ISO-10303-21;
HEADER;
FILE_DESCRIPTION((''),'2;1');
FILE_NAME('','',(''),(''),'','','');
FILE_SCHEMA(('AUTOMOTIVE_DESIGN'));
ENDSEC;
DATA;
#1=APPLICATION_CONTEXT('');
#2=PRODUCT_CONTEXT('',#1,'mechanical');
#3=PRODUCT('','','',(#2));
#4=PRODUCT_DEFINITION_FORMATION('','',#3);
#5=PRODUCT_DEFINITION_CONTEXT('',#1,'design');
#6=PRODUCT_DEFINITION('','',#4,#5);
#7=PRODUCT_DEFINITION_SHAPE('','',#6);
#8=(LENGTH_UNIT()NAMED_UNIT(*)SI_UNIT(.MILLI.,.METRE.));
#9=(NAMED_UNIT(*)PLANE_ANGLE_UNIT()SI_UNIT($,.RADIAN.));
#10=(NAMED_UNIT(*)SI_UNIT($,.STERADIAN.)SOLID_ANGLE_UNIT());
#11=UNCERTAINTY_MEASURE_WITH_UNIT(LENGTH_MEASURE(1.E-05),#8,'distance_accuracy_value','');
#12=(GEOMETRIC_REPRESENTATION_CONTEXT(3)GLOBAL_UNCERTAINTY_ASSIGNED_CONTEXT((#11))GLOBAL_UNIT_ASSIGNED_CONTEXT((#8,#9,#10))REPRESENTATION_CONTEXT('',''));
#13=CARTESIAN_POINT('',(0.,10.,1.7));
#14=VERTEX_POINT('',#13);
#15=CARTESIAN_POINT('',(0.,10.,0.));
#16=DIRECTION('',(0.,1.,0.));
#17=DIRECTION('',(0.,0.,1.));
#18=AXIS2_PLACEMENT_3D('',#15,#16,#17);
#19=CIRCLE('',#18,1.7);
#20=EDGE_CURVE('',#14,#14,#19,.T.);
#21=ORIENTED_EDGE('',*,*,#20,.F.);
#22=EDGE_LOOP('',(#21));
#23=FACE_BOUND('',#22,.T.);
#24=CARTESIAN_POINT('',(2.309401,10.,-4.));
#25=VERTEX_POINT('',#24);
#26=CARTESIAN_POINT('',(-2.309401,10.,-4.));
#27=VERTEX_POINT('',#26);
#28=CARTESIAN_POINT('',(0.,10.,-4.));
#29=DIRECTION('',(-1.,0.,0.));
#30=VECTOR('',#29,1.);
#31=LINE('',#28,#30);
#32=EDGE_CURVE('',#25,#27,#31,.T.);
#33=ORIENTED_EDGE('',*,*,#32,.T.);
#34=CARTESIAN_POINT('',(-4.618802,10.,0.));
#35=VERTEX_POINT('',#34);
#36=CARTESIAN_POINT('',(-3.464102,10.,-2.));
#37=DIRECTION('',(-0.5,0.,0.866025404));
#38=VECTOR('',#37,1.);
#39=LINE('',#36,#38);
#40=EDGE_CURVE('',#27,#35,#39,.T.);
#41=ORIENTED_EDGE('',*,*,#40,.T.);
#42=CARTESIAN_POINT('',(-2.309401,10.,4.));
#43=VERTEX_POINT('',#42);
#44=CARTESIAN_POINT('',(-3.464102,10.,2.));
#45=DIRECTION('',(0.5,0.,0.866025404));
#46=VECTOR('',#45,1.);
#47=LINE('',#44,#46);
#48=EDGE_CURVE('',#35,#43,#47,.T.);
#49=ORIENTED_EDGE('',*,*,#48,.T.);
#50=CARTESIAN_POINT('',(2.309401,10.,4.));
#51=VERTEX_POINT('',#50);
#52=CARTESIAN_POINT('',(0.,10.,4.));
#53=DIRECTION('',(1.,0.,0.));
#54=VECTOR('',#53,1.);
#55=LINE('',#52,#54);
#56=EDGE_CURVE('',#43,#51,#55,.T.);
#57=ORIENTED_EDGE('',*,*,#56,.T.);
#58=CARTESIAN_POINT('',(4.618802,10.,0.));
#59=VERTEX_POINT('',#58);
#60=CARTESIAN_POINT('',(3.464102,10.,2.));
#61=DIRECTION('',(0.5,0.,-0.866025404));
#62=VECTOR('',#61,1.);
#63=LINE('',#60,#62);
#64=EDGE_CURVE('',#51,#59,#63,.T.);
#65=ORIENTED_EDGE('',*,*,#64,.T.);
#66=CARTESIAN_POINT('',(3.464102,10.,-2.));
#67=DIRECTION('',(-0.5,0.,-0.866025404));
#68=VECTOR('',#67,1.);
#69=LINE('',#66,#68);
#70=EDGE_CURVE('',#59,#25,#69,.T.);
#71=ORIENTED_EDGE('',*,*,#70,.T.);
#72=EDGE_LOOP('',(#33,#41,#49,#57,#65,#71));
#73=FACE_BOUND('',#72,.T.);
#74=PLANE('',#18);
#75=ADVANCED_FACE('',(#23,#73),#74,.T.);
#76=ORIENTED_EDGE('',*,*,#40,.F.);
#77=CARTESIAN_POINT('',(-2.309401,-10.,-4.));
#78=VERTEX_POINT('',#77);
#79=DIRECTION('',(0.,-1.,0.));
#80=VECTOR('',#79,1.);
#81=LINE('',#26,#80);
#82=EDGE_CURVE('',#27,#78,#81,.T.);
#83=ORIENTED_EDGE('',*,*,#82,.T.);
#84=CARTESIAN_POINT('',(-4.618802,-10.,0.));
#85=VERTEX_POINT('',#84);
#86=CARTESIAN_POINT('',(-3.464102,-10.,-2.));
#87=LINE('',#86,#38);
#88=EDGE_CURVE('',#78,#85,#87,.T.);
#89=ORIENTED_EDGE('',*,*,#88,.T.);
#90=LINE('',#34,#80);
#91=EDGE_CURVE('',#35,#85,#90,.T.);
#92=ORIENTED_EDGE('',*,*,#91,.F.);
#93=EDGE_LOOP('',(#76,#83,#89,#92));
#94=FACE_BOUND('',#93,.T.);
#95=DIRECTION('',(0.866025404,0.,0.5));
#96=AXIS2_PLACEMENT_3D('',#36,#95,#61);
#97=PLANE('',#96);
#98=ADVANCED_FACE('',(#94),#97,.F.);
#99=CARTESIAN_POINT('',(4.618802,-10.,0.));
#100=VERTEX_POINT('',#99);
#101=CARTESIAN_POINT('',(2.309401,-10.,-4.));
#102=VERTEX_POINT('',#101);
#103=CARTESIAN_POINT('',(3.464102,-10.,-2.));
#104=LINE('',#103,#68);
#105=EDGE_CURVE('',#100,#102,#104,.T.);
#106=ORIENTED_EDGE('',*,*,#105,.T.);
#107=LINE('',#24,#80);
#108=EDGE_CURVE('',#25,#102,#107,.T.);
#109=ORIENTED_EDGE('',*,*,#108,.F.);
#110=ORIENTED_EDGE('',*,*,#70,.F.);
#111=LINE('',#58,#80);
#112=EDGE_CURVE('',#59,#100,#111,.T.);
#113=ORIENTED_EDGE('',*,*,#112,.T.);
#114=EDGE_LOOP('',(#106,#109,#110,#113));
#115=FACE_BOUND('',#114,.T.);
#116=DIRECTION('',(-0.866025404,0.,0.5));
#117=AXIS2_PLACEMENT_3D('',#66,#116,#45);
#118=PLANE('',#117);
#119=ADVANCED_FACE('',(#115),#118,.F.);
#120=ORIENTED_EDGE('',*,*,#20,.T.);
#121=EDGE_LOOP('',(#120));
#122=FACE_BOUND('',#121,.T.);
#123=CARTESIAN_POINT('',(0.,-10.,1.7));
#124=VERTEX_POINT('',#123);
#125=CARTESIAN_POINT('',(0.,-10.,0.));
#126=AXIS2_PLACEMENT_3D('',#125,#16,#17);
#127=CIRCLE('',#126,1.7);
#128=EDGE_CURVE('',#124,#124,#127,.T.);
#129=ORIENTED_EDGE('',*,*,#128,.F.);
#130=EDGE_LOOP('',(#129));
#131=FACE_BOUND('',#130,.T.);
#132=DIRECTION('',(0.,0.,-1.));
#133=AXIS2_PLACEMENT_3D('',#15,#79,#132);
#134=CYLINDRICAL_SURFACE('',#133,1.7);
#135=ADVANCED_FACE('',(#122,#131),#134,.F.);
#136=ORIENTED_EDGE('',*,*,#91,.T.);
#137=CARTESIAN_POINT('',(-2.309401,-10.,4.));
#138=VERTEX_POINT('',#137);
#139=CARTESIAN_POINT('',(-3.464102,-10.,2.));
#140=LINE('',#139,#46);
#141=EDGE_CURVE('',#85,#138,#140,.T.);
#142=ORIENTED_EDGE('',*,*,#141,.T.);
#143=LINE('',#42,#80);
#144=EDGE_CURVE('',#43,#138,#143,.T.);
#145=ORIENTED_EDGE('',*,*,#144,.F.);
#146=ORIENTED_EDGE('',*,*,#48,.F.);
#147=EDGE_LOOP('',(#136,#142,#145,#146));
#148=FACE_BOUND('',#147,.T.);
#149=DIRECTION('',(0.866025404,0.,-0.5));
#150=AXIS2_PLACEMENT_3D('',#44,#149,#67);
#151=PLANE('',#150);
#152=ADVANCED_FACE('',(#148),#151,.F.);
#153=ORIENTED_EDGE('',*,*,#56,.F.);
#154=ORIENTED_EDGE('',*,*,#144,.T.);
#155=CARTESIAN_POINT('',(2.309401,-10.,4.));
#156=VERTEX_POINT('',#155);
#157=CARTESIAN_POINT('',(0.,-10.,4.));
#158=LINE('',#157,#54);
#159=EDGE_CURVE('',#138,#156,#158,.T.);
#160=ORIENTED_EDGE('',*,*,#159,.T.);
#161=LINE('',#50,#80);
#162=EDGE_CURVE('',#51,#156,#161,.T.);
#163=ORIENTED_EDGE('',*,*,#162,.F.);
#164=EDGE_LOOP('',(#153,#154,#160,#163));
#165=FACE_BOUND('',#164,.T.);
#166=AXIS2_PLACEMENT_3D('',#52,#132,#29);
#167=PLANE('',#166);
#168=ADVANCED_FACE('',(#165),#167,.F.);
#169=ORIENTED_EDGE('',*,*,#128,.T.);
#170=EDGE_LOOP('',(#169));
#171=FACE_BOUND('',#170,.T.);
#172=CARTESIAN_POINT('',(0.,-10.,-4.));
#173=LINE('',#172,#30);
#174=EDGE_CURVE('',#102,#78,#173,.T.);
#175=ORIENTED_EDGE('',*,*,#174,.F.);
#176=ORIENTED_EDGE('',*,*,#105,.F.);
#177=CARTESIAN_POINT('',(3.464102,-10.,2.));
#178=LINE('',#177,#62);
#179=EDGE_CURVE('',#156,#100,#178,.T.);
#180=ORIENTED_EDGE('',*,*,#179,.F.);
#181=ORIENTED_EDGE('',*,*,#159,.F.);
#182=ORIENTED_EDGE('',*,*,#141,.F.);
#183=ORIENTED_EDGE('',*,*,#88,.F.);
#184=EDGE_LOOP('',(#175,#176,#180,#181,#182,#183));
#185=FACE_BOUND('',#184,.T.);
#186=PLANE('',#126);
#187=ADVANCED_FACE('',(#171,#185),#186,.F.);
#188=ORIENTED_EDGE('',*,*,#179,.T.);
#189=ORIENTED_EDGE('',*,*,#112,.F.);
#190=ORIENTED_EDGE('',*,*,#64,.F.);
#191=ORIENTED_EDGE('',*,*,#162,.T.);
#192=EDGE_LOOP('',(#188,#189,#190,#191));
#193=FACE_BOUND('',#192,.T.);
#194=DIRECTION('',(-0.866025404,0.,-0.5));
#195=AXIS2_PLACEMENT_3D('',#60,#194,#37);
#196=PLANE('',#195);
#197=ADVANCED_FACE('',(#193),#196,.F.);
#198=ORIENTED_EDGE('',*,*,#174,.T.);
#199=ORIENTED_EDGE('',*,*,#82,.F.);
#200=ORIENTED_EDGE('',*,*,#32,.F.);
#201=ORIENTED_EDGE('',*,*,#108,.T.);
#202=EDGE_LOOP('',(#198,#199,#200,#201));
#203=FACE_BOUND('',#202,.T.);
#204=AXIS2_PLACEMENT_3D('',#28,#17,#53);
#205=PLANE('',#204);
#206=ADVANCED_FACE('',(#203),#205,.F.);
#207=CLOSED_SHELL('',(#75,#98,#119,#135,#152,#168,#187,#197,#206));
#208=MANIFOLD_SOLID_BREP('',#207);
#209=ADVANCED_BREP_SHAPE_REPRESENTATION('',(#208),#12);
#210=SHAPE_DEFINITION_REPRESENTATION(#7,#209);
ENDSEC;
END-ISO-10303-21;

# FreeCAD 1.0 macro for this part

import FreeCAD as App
import Part
import Sketcher
from FreeCAD import Vector
Q = App.Units.Quantity

doc = App.newDocument("Part")
params = doc.addObject("Spreadsheet::Sheet", "Params")
for row, (alias, value) in enumerate([
    ("sketch1_diameter", "3.4 mm"),
    ("pad1_length", "20 mm"),
], start=1):
    params.set(f"A{row}", alias)
    params.set(f"B{row}", "=" + value)
    params.setAlias(f"B{row}", alias)

body = doc.addObject("PartDesign::Body", "Body")

sketch1 = body.newObject("Sketcher::SketchObject", "Sketch")
sketch1.AttachmentSupport = (doc.getObject("XZ_Plane"), [""])
sketch1.MapMode = "FlatFace"
sketch1.addGeometry([
    Part.LineSegment(Vector(-2.309401, 4, 0), Vector(2.309401, 4, 0)),
    Part.LineSegment(Vector(2.309401, 4, 0), Vector(4.618802, 0, 0)),
    Part.LineSegment(Vector(4.618802, 0, 0), Vector(2.309401, -4, 0)),
    Part.LineSegment(Vector(2.309401, -4, 0), Vector(-2.309401, -4, 0)),
    Part.LineSegment(Vector(-2.309401, -4, 0), Vector(-4.618802, 0, 0)),
    Part.LineSegment(Vector(-4.618802, 0, 0), Vector(-2.309401, 4, 0)),
    Part.Circle(Vector(0, 0, 0), Vector(0, 0, 1), 1.7),
], False)
sketch1.addConstraint([
    Sketcher.Constraint("Coincident", 0, 2, 1, 1),
    Sketcher.Constraint("Coincident", 1, 2, 2, 1),
    Sketcher.Constraint("Coincident", 2, 2, 3, 1),
    Sketcher.Constraint("Coincident", 3, 2, 4, 1),
    Sketcher.Constraint("Coincident", 4, 2, 5, 1),
    Sketcher.Constraint("Coincident", 5, 2, 0, 1),
    Sketcher.Constraint("Horizontal", 0),
    Sketcher.Constraint("Horizontal", 3),
    Sketcher.Constraint("Coincident", 6, 3, -1, 1),
    Sketcher.Constraint("Symmetric", 0, 2, 3, 2, -1, 1),
    Sketcher.Constraint("Symmetric", 1, 2, 4, 2, -1, 1),
    Sketcher.Constraint("PointOnObject", 1, 2, -1),
    Sketcher.Constraint("Parallel", 2, 5),
    Sketcher.Constraint("Vertical", 0, 2, 2, 2),
    Sketcher.Constraint("Diameter", 6, 3.4),
    Sketcher.Constraint("Angle", 1, Q("-60 deg")),
    Sketcher.Constraint("DistanceY", -1, 1, 0, 2, 4.0),
    Sketcher.Constraint("DistanceX", -1, 1, 0, 2, 2.309401),
])
sketch1.setExpression("Constraints[14]", "Params.sketch1_diameter")
pad1 = body.newObject("PartDesign::Pad", "Pad")
pad1.Profile = sketch1
pad1.setExpression("Length", "Params.pad1_length")
pad1.Midplane = True

doc.recompute()
